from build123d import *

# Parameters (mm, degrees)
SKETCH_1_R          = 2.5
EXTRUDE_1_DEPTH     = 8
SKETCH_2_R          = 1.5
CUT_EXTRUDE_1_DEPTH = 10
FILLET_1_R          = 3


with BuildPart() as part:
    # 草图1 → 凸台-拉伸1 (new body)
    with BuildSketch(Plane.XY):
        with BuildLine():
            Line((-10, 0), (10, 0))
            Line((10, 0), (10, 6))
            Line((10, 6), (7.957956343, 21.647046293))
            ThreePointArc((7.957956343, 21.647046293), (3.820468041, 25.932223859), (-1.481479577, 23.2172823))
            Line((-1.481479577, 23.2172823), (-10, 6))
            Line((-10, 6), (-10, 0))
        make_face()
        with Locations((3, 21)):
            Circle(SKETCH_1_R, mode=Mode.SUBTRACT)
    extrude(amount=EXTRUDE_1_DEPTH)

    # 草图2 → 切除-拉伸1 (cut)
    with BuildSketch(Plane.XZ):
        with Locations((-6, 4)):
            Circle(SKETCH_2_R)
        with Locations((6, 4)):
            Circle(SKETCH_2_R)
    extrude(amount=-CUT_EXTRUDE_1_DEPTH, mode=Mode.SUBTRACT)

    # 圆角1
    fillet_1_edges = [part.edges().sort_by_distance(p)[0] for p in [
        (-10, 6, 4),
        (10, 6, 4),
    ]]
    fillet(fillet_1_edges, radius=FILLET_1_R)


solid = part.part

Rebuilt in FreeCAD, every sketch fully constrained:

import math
import FreeCAD as App
import Part
import Sketcher
from FreeCAD import Vector
Q = App.Units.Quantity


def edges_at(feature, points):
    """Names of the edges that pass closest to the given points."""
    edges = feature.Shape.Edges
    near = lambda p: min(range(len(edges)), key=lambda i: edges[i].distToShape(Part.Vertex(*p))[0])
    return sorted({f"Edge{near(p) + 1}" for p in points})

doc = App.newDocument("Part")
body = doc.addObject("PartDesign::Body", "Body")

# Sketch on XY plane
sketch1 = body.newObject("Sketcher::SketchObject", "Sketch")
sketch1.AttachmentSupport = (doc.getObject("XY_Plane"), [""])
sketch1.MapMode = "FlatFace"
sketch1.addGeometry([
    Part.LineSegment(Vector(-10, 0, 0), Vector(10, 0, 0)),  # 0
    Part.LineSegment(Vector(10, 0, 0), Vector(10, 6, 0)),  # 1
    Part.LineSegment(Vector(10, 6, 0), Vector(7.957956, 21.647046, 0)),  # 2
    Part.ArcOfCircle(Part.Circle(Vector(3, 21, 0), Vector(0, 0, 1), 5), math.radians(7.435457), math.radians(153.675374)),  # 3
    Part.LineSegment(Vector(-1.48148, 23.217282, 0), Vector(-10, 6, 0)),  # 4
    Part.LineSegment(Vector(-10, 6, 0), Vector(-10, 0, 0)),  # 5
    Part.Circle(Vector(3, 21, 0), Vector(0, 0, 1), 2.5),  # 6
], False)
sketch1.addConstraint([
    Sketcher.Constraint("Coincident", 0, 2, 1, 1),
    Sketcher.Constraint("Coincident", 1, 2, 2, 1),
    Sketcher.Constraint("Tangent", 2, 2, 3, 1),
    Sketcher.Constraint("Tangent", 3, 2, 4, 1),
    Sketcher.Constraint("Coincident", 4, 2, 5, 1),
    Sketcher.Constraint("Coincident", 5, 2, 0, 1),
    Sketcher.Constraint("Horizontal", 0),
    Sketcher.Constraint("Vertical", 1),
    Sketcher.Constraint("Vertical", 5),
    Sketcher.Constraint("Coincident", 6, 3, 3, 3),
    Sketcher.Constraint("Symmetric", 0, 2, 5, 2, -1, 1),
    Sketcher.Constraint("Horizontal", 1, 2, 4, 2),
    Sketcher.Constraint("Diameter", 6, Q("5 mm")),
    Sketcher.Constraint("Radius", 3, Q("5 mm")),
    Sketcher.Constraint("DistanceX", 0, 1, 0, 2, Q("20 mm")),
    Sketcher.Constraint("DistanceY", 1, 1, 1, 2, Q("6 mm")),
    Sketcher.Constraint("DistanceX", -1, 1, 3, 3, Q("3 mm")),
    Sketcher.Constraint("DistanceY", -1, 1, 3, 3, Q("21 mm")),
])
pad1 = body.newObject("PartDesign::Pad", "Pad")
pad1.Profile = sketch1
pad1.Length = 8

# Sketch on XZ plane
sketch2 = body.newObject("Sketcher::SketchObject", "Sketch001")
sketch2.AttachmentSupport = (doc.getObject("XZ_Plane"), [""])
sketch2.MapMode = "FlatFace"
sketch2.addGeometry([
    Part.Circle(Vector(-6, 4, 0), Vector(0, 0, 1), 1.5),
    Part.Circle(Vector(6, 4, 0), Vector(0, 0, 1), 1.5),
], False)
sketch2.addConstraint([
    Sketcher.Constraint("Equal", 0, 1),
    Sketcher.Constraint("Symmetric", 0, 3, 1, 3, -2),
    Sketcher.Constraint("Diameter", 0, Q("3 mm")),
    Sketcher.Constraint("DistanceX", 0, 3, -1, 1, Q("6 mm")),
    Sketcher.Constraint("DistanceY", -1, 1, 0, 3, Q("4 mm")),
])
pocket1 = body.newObject("PartDesign::Pocket", "Pocket")
pocket1.Profile = sketch2
pocket1.Length = 10
doc.recompute()

fillet = body.newObject("PartDesign::Fillet", "Fillet")
fillet.Base = (pocket1, edges_at(pocket1, [(-10, 6, 4), (10, 6, 4)]))
fillet.Radius = 3

doc.recompute()
